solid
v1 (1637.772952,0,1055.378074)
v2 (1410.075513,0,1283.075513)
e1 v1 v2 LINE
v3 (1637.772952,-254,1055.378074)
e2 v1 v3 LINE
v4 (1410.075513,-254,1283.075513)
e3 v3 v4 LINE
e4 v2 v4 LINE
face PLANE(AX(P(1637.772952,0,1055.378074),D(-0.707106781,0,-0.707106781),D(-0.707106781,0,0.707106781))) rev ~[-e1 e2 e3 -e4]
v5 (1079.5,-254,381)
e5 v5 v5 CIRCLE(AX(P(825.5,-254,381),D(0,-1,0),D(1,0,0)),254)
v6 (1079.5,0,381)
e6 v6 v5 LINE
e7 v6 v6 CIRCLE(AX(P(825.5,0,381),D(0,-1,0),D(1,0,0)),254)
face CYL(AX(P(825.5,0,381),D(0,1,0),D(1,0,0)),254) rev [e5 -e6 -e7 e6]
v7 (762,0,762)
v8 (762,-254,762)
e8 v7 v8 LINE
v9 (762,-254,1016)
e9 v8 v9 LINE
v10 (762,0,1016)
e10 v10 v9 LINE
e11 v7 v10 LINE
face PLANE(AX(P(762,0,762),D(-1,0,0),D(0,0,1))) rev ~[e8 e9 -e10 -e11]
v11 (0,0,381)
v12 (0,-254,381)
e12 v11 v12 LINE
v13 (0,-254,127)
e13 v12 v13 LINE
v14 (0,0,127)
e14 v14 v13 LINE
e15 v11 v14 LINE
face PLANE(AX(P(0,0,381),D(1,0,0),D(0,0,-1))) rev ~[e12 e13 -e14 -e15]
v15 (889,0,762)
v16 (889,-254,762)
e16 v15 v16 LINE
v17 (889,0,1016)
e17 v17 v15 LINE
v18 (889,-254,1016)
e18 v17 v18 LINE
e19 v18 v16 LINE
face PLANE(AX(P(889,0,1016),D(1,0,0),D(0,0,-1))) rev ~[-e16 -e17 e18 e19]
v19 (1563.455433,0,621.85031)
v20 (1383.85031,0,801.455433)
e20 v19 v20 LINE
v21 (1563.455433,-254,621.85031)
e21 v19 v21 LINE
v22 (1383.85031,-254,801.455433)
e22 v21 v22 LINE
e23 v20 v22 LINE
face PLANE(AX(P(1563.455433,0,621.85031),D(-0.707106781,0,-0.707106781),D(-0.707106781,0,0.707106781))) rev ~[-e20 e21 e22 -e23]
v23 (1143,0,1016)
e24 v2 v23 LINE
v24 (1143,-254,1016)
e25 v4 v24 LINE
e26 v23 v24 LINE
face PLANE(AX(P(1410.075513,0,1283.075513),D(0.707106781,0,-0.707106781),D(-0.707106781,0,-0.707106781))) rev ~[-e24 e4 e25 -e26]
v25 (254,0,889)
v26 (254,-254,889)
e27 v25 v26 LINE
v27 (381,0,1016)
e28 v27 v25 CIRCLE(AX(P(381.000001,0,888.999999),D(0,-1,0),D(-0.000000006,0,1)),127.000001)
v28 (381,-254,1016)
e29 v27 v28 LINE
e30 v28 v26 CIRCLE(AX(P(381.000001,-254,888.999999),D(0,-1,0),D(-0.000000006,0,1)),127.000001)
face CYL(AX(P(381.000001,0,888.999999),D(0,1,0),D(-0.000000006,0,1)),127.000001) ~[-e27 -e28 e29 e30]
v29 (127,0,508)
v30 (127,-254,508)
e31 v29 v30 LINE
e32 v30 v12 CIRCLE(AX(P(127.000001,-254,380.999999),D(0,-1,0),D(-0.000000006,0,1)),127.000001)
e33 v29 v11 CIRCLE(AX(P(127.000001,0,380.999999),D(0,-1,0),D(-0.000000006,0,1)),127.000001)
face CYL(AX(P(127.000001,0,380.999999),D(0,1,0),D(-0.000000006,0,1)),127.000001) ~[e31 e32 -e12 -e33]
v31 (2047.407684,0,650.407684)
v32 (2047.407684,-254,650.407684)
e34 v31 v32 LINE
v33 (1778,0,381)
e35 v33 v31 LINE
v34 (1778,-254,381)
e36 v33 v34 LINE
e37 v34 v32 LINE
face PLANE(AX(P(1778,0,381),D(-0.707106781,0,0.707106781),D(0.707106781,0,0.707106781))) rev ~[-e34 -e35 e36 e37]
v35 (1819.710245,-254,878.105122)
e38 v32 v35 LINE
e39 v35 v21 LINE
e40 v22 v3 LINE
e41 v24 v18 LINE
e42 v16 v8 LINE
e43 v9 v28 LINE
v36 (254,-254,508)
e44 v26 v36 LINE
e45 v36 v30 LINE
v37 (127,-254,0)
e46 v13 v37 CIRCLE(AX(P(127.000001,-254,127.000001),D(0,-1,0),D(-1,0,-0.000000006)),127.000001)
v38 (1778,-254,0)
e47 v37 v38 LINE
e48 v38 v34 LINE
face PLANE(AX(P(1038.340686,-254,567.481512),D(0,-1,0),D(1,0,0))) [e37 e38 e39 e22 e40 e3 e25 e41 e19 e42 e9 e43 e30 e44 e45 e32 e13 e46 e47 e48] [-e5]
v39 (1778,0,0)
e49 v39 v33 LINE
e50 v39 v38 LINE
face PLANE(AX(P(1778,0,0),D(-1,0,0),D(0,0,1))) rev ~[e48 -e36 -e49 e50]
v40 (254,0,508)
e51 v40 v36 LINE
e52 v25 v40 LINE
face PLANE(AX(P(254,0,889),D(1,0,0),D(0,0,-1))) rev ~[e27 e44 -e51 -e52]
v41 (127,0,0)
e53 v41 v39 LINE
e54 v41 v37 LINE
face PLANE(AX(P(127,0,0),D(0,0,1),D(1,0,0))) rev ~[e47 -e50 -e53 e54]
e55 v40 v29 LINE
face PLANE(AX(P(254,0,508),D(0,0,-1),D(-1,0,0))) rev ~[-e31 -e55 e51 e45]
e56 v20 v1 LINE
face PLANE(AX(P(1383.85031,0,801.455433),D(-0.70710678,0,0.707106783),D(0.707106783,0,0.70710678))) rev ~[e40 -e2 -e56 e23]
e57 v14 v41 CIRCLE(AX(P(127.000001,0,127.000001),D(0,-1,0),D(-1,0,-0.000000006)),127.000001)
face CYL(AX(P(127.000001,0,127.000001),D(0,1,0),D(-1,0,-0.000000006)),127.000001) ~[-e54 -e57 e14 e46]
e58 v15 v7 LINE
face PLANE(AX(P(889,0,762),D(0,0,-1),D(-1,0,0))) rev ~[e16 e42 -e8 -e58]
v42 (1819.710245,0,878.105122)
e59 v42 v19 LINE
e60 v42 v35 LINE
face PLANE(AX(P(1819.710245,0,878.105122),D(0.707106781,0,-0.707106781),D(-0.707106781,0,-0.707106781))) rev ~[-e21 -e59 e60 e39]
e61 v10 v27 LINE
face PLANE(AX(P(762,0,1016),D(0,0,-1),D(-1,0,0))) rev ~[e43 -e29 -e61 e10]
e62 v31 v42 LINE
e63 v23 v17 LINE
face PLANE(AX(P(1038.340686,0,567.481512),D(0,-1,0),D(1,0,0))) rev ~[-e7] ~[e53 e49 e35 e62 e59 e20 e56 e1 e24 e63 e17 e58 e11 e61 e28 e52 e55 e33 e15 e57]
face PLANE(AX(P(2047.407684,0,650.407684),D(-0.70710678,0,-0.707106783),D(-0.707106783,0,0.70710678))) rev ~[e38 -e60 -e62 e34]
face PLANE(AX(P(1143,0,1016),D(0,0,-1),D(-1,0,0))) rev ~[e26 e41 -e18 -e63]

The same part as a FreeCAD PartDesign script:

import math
import FreeCAD as App
import Part
import Sketcher
Q = App.Units.Quantity

doc = App.newDocument("Part")
params = doc.addObject("Spreadsheet::Sheet", "Params")
for row, (alias, value) in enumerate([
    ("sketch1_diameter", "20 in"),
    ("sketch1_radius", "5 in"),
    ("sketch1_width", "65 in"),
    ("sketch1_width2", "10 in"),
    ("sketch1_width3", "5 in"),
    ("pad1_length", "10 in"),
], start=1):
    params.set(f"A{row}", alias)
    params.set(f"B{row}", "=" + value)
    params.setAlias(f"B{row}", alias)

body = doc.addObject("PartDesign::Body", "Body")

sketch1 = body.newObject("Sketcher::SketchObject", "Sketch")
sketch1.AttachmentSupport = (doc.getObject("XZ_Plane"), [""])
sketch1.MapMode = "FlatFace"
sketch1.addGeometry([
    Part.ArcOfCircle(Part.Circle(App.Vector(127.000001, 127.000001, 0), App.Vector(0, 0, 1), 127.000001), math.radians(-180), math.radians(-90)),
    Part.LineSegment(App.Vector(127, 0, 0), App.Vector(1778, 0, 0)),
    Part.LineSegment(App.Vector(1778, 0, 0), App.Vector(1778, 381, 0)),
    Part.LineSegment(App.Vector(1778, 381, 0), App.Vector(2047.407684, 650.407684, 0)),
    Part.LineSegment(App.Vector(2047.407684, 650.407684, 0), App.Vector(1819.710245, 878.105122, 0)),
    Part.LineSegment(App.Vector(1819.710245, 878.105122, 0), App.Vector(1563.455433, 621.85031, 0)),
    Part.LineSegment(App.Vector(1563.455433, 621.85031, 0), App.Vector(1383.85031, 801.455433, 0)),
    Part.LineSegment(App.Vector(1383.85031, 801.455433, 0), App.Vector(1637.772952, 1055.378074, 0)),
    Part.LineSegment(App.Vector(1637.772952, 1055.378074, 0), App.Vector(1410.075513, 1283.075513, 0)),
    Part.LineSegment(App.Vector(1410.075513, 1283.075513, 0), App.Vector(1143, 1016, 0)),
    Part.LineSegment(App.Vector(1143, 1016, 0), App.Vector(889, 1016, 0)),
    Part.LineSegment(App.Vector(889, 1016, 0), App.Vector(889, 762, 0)),
    Part.LineSegment(App.Vector(889, 762, 0), App.Vector(762, 762, 0)),
    Part.LineSegment(App.Vector(762, 762, 0), App.Vector(762, 1016, 0)),
    Part.LineSegment(App.Vector(762, 1016, 0), App.Vector(381, 1016, 0)),
    Part.ArcOfCircle(Part.Circle(App.Vector(381.000001, 888.999999, 0), App.Vector(0, 0, 1), 127.000001), math.radians(90), math.radians(180)),
    Part.LineSegment(App.Vector(254, 889, 0), App.Vector(254, 508, 0)),
    Part.LineSegment(App.Vector(254, 508, 0), App.Vector(127, 508, 0)),
    Part.ArcOfCircle(Part.Circle(App.Vector(127.000001, 380.999999, 0), App.Vector(0, 0, 1), 127.000001), math.radians(90), math.radians(180)),
    Part.LineSegment(App.Vector(0, 381, 0), App.Vector(0, 127, 0)),
    Part.Circle(App.Vector(825.5, 381, 0), App.Vector(0, 0, 1), 254),
], False)
sketch1.addConstraint([
    Sketcher.Constraint("Tangent", 0, 2, 1, 1),
    Sketcher.Constraint("Coincident", 1, 2, 2, 1),
    Sketcher.Constraint("Coincident", 2, 2, 3, 1),
    Sketcher.Constraint("Coincident", 3, 2, 4, 1),
    Sketcher.Constraint("Coincident", 4, 2, 5, 1),
    Sketcher.Constraint("Coincident", 5, 2, 6, 1),
    Sketcher.Constraint("Coincident", 6, 2, 7, 1),
    Sketcher.Constraint("Coincident", 7, 2, 8, 1),
    Sketcher.Constraint("Coincident", 8, 2, 9, 1),
    Sketcher.Constraint("Coincident", 9, 2, 10, 1),
    Sketcher.Constraint("Coincident", 10, 2, 11, 1),
    Sketcher.Constraint("Coincident", 11, 2, 12, 1),
    Sketcher.Constraint("Coincident", 12, 2, 13, 1),
    Sketcher.Constraint("Coincident", 13, 2, 14, 1),
    Sketcher.Constraint("Tangent", 14, 2, 15, 1),
    Sketcher.Constraint("Tangent", 15, 2, 16, 1),
    Sketcher.Constraint("Coincident", 16, 2, 17, 1),
    Sketcher.Constraint("Tangent", 17, 2, 18, 1),
    Sketcher.Constraint("Tangent", 18, 2, 19, 1),
    Sketcher.Constraint("Tangent", 19, 2, 0, 1),
    Sketcher.Constraint("Horizontal", 1),
    Sketcher.Constraint("Vertical", 2),
    Sketcher.Constraint("Horizontal", 10),
    Sketcher.Constraint("Vertical", 11),
    Sketcher.Constraint("Horizontal", 12),
    Sketcher.Constraint("Vertical", 13),
    Sketcher.Constraint("Horizontal", 14),
    Sketcher.Constraint("Vertical", 16),
    Sketcher.Constraint("Horizontal", 17),
    Sketcher.Constraint("Vertical", 19),
    Sketcher.Constraint("Equal", 0, 15),
    Sketcher.Constraint("Equal", 15, 18),
    Sketcher.Constraint("PointOnObject", 0, 2, -1),
    Sketcher.Constraint("PointOnObject", 18, 2, -2),
    Sketcher.Constraint("Perpendicular", 3, 4),
    Sketcher.Constraint("Perpendicular", 4, 5),
    Sketcher.Constraint("Perpendicular", 5, 6),
    Sketcher.Constraint("Perpendicular", 6, 7),
    Sketcher.Constraint("Perpendicular", 7, 8),
    Sketcher.Constraint("Perpendicular", 8, 9),
    Sketcher.Constraint("Horizontal", 18, 3, 20, 3),
    Sketcher.Constraint("Horizontal", 20, 3, 2, 2),
    Sketcher.Constraint("Horizontal", 10, 2, 13, 2),
    Sketcher.Constraint("Equal", 12, 17),
    Sketcher.Constraint("Equal", 14, 2),
    Sketcher.Constraint("Equal", 10, 11),
    Sketcher.Constraint("Equal", 2, 16),
    Sketcher.Constraint("Equal", 13, 19),
    Sketcher.Constraint("Equal", 4, 8),
    Sketcher.Constraint("Diameter", 20, Q("20 in")),
    Sketcher.Constraint("Radius", 0, Q("5 in")),
    Sketcher.Constraint("DistanceX", 1, 1, 1, 2, Q("65 in")),
    Sketcher.Constraint("DistanceX", 10, 2, 10, 1, Q("10 in")),
    Sketcher.Constraint("DistanceX", 12, 2, 12, 1, Q("5 in")),
    Sketcher.Constraint("Distance", 3, Q("15 in")),
    Sketcher.Constraint("Distance", 6, Q("10 in")),
    Sketcher.Constraint("Angle", 3, Q("45 deg")),
    Sketcher.Constraint("DistanceX", -1, 1, 20, 3, Q("32.5 in")),
    Sketcher.Constraint("Distance", 5, 362.399031),
    Sketcher.Constraint("DistanceX", -1, 1, 7, 2, 1637.772952),
])
sketch1.setExpression("Constraints[49]", "Params.sketch1_diameter")
sketch1.setExpression("Constraints[50]", "Params.sketch1_radius")
sketch1.setExpression("Constraints[51]", "Params.sketch1_width")
sketch1.setExpression("Constraints[52]", "Params.sketch1_width2")
sketch1.setExpression("Constraints[53]", "Params.sketch1_width3")
pad1 = body.newObject("PartDesign::Pad", "Pad")
pad1.Profile = sketch1
pad1.setExpression("Length", "Params.pad1_length")

doc.recompute()
